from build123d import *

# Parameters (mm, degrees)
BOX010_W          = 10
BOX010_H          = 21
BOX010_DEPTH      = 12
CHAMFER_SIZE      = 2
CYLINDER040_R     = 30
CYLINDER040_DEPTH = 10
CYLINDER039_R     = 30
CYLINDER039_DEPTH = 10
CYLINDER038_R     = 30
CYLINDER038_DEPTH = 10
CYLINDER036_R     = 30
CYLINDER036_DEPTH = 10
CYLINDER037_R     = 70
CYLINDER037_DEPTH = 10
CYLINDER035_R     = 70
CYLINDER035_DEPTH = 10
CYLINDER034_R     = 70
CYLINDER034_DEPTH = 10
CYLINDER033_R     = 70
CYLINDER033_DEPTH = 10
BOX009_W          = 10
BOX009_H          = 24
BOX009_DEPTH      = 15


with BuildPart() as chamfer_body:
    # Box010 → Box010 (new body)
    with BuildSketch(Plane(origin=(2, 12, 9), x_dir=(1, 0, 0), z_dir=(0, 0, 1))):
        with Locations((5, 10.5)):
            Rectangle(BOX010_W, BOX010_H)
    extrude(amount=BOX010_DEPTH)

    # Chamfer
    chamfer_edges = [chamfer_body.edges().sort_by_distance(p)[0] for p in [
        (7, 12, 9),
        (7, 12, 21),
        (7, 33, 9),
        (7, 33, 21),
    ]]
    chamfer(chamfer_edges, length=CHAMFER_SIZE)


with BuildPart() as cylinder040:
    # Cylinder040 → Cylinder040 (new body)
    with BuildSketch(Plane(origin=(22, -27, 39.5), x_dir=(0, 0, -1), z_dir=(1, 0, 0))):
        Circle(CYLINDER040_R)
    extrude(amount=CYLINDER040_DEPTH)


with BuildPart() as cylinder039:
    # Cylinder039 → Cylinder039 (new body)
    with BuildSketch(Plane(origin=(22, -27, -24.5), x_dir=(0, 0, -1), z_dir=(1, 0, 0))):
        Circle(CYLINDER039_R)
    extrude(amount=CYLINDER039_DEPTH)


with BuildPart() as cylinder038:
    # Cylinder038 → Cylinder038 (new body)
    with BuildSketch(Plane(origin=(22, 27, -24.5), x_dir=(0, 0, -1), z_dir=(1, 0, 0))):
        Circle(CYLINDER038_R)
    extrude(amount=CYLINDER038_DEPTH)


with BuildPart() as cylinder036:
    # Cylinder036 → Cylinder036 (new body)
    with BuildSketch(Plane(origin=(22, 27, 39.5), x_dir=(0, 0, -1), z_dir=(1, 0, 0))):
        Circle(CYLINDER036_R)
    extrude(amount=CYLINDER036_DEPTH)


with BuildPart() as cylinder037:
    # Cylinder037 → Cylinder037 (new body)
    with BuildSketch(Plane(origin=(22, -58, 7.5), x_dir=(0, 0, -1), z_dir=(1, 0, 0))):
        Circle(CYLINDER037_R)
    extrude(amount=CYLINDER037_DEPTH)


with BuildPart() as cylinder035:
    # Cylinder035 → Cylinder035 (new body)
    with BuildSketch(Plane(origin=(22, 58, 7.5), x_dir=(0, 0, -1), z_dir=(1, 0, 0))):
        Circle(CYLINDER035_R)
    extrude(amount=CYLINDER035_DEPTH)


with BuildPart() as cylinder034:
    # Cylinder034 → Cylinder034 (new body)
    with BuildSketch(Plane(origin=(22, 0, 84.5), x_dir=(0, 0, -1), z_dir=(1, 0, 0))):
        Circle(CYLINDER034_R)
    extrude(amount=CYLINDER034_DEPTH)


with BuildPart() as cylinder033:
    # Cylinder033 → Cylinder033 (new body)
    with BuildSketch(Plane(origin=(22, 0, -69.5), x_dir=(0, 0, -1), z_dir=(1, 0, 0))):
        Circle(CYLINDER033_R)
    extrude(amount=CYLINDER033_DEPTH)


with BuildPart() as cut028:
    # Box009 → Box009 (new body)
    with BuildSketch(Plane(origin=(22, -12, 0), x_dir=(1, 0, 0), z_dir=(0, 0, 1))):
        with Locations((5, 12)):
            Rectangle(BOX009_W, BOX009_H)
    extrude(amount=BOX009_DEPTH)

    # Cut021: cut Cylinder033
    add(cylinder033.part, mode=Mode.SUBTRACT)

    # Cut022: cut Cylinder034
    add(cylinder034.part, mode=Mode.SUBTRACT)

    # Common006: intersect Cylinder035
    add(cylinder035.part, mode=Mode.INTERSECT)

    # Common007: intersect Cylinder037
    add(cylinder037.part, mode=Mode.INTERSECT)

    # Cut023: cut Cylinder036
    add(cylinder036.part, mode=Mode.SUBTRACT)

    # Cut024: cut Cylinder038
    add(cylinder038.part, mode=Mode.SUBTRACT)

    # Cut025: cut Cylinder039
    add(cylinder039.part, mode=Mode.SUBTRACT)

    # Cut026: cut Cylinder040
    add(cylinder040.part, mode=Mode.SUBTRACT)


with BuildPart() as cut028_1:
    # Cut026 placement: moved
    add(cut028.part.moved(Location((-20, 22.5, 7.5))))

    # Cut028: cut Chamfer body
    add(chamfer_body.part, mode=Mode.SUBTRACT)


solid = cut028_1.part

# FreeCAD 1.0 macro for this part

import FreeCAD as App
import Part
import Sketcher

V = App.Vector


def edges_at(feature, points):
    """Names of the edges that pass closest to the given points."""
    edges = feature.Shape.Edges
    near = lambda p: min(range(len(edges)), key=lambda i: edges[i].distToShape(Part.Vertex(*p))[0])
    return sorted({f"Edge{near(p) + 1}" for p in points})

doc = App.newDocument("Part")
body = doc.addObject("PartDesign::Body", "Body")

# Sketch on XY plane
sketch1 = body.newObject("Sketcher::SketchObject", "Sketch")
sketch1.AttachmentSupport = (doc.getObject("XY_Plane"), [""])
sketch1.MapMode = "FlatFace"
sketch1.AttachmentOffset = App.Placement(V(0, 0, 9), App.Rotation())
sketch1.addGeometry(Part.LineSegment(V(2, 33, 0), V(2, 12, 0)), False)
sketch1.addGeometry(Part.LineSegment(V(2, 12, 0), V(12, 12, 0)), False)
sketch1.addGeometry(Part.LineSegment(V(12, 12, 0), V(12, 33, 0)), False)
sketch1.addGeometry(Part.LineSegment(V(12, 33, 0), V(2, 33, 0)), False)
sketch1.addConstraint(Sketcher.Constraint("Coincident", 0, 2, 1, 1))
sketch1.addConstraint(Sketcher.Constraint("Coincident", 1, 2, 2, 1))
sketch1.addConstraint(Sketcher.Constraint("Coincident", 2, 2, 3, 1))
sketch1.addConstraint(Sketcher.Constraint("Coincident", 3, 2, 0, 1))
sketch1.addConstraint(Sketcher.Constraint("Vertical", 0))
sketch1.addConstraint(Sketcher.Constraint("Horizontal", 1))
sketch1.addConstraint(Sketcher.Constraint("Vertical", 2))
sketch1.addConstraint(Sketcher.Constraint("Horizontal", 3))
sketch1.addConstraint(Sketcher.Constraint("DistanceX", 1, 1, 1, 2, 10.0))
sketch1.addConstraint(Sketcher.Constraint("DistanceY", 0, 2, 0, 1, 21.0))
sketch1.addConstraint(Sketcher.Constraint("DistanceX", -1, 1, 0, 2, 2.0))
sketch1.addConstraint(Sketcher.Constraint("DistanceY", -1, 1, 0, 2, 12.0))
pad1 = body.newObject("PartDesign::Pad", "Pad")
pad1.Profile = sketch1
pad1.Length = 12
doc.recompute()

chamfer = body.newObject("PartDesign::Chamfer", "Chamfer")
chamfer.Base = (pad1, edges_at(pad1, [
    (7, 12, 9),
    (7, 12, 21),
    (7, 33, 9),
    (7, 33, 21),
]))
chamfer.Size = 2
body2 = doc.addObject("PartDesign::Body", "Body001")

# Sketch on YZ plane
sketch2 = body2.newObject("Sketcher::SketchObject", "Sketch001")
sketch2.AttachmentSupport = (doc.getObject("YZ_Plane001"), [""])
sketch2.MapMode = "FlatFace"
sketch2.AttachmentOffset = App.Placement(V(0, 0, 22), App.Rotation())
sketch2.addGeometry(Part.Circle(V(-27, 40, 0), V(0, 0, 1), 30), False)
sketch2.addConstraint(Sketcher.Constraint("Diameter", 0, 60.0))
sketch2.addConstraint(Sketcher.Constraint("DistanceX", 0, 3, -1, 1, 27.0))
sketch2.addConstraint(Sketcher.Constraint("DistanceY", -1, 1, 0, 3, 39.5))
pad2 = body2.newObject("PartDesign::Pad", "Pad001")
pad2.Profile = sketch2
pad2.Length = 10
body3 = doc.addObject("PartDesign::Body", "Body002")

# Sketch on YZ plane
sketch3 = body3.newObject("Sketcher::SketchObject", "Sketch002")
sketch3.AttachmentSupport = (doc.getObject("YZ_Plane002"), [""])
sketch3.MapMode = "FlatFace"
sketch3.AttachmentOffset = App.Placement(V(0, 0, 22), App.Rotation())
sketch3.addGeometry(Part.Circle(V(-27, -24, 0), V(0, 0, 1), 30), False)
sketch3.addConstraint(Sketcher.Constraint("Diameter", 0, 60.0))
sketch3.addConstraint(Sketcher.Constraint("DistanceX", 0, 3, -1, 1, 27.0))
sketch3.addConstraint(Sketcher.Constraint("DistanceY", 0, 3, -1, 1, 24.5))
pad3 = body3.newObject("PartDesign::Pad", "Pad002")
pad3.Profile = sketch3
pad3.Length = 10
body4 = doc.addObject("PartDesign::Body", "Body003")

# Sketch on YZ plane
sketch4 = body4.newObject("Sketcher::SketchObject", "Sketch003")
sketch4.AttachmentSupport = (doc.getObject("YZ_Plane003"), [""])
sketch4.MapMode = "FlatFace"
sketch4.AttachmentOffset = App.Placement(V(0, 0, 22), App.Rotation())
sketch4.addGeometry(Part.Circle(V(27, -24, 0), V(0, 0, 1), 30), False)
sketch4.addConstraint(Sketcher.Constraint("Diameter", 0, 60.0))
sketch4.addConstraint(Sketcher.Constraint("DistanceX", -1, 1, 0, 3, 27.0))
sketch4.addConstraint(Sketcher.Constraint("DistanceY", 0, 3, -1, 1, 24.5))
pad4 = body4.newObject("PartDesign::Pad", "Pad003")
pad4.Profile = sketch4
pad4.Length = 10
body5 = doc.addObject("PartDesign::Body", "Body004")

# Sketch on YZ plane
sketch5 = body5.newObject("Sketcher::SketchObject", "Sketch004")
sketch5.AttachmentSupport = (doc.getObject("YZ_Plane004"), [""])
sketch5.MapMode = "FlatFace"
sketch5.AttachmentOffset = App.Placement(V(0, 0, 22), App.Rotation())
sketch5.addGeometry(Part.Circle(V(27, 40, 0), V(0, 0, 1), 30), False)
sketch5.addConstraint(Sketcher.Constraint("Diameter", 0, 60.0))
sketch5.addConstraint(Sketcher.Constraint("DistanceX", -1, 1, 0, 3, 27.0))
sketch5.addConstraint(Sketcher.Constraint("DistanceY", -1, 1, 0, 3, 39.5))
pad5 = body5.newObject("PartDesign::Pad", "Pad004")
pad5.Profile = sketch5
pad5.Length = 10
body6 = doc.addObject("PartDesign::Body", "Body005")

# Sketch on YZ plane
sketch6 = body6.newObject("Sketcher::SketchObject", "Sketch005")
sketch6.AttachmentSupport = (doc.getObject("YZ_Plane005"), [""])
sketch6.MapMode = "FlatFace"
sketch6.AttachmentOffset = App.Placement(V(0, 0, 22), App.Rotation())
sketch6.addGeometry(Part.Circle(V(-58, 8, 0), V(0, 0, 1), 70), False)
sketch6.addConstraint(Sketcher.Constraint("Diameter", 0, 140.0))
sketch6.addConstraint(Sketcher.Constraint("DistanceX", 0, 3, -1, 1, 58.0))
sketch6.addConstraint(Sketcher.Constraint("DistanceY", -1, 1, 0, 3, 7.5))
pad6 = body6.newObject("PartDesign::Pad", "Pad005")
pad6.Profile = sketch6
pad6.Length = 10
body7 = doc.addObject("PartDesign::Body", "Body006")

# Sketch on YZ plane
sketch7 = body7.newObject("Sketcher::SketchObject", "Sketch006")
sketch7.AttachmentSupport = (doc.getObject("YZ_Plane006"), [""])
sketch7.MapMode = "FlatFace"
sketch7.AttachmentOffset = App.Placement(V(0, 0, 22), App.Rotation())
sketch7.addGeometry(Part.Circle(V(58, 8, 0), V(0, 0, 1), 70), False)
sketch7.addConstraint(Sketcher.Constraint("Diameter", 0, 140.0))
sketch7.addConstraint(Sketcher.Constraint("DistanceX", -1, 1, 0, 3, 58.0))
sketch7.addConstraint(Sketcher.Constraint("DistanceY", -1, 1, 0, 3, 7.5))
pad7 = body7.newObject("PartDesign::Pad", "Pad006")
pad7.Profile = sketch7
pad7.Length = 10
body8 = doc.addObject("PartDesign::Body", "Body007")

# Sketch on YZ plane
sketch8 = body8.newObject("Sketcher::SketchObject", "Sketch007")
sketch8.AttachmentSupport = (doc.getObject("YZ_Plane007"), [""])
sketch8.MapMode = "FlatFace"
sketch8.AttachmentOffset = App.Placement(V(0, 0, 22), App.Rotation())
sketch8.addGeometry(Part.Circle(V(0, 84, 0), V(0, 0, 1), 70), False)
sketch8.addConstraint(Sketcher.Constraint("PointOnObject", 0, 3, -2))
sketch8.addConstraint(Sketcher.Constraint("Diameter", 0, 140.0))
sketch8.addConstraint(Sketcher.Constraint("DistanceY", -1, 1, 0, 3, 84.5))
pad8 = body8.newObject("PartDesign::Pad", "Pad007")
pad8.Profile = sketch8
pad8.Length = 10
body9 = doc.addObject("PartDesign::Body", "Body008")

# Sketch on YZ plane
sketch9 = body9.newObject("Sketcher::SketchObject", "Sketch008")
sketch9.AttachmentSupport = (doc.getObject("YZ_Plane008"), [""])
sketch9.MapMode = "FlatFace"
sketch9.AttachmentOffset = App.Placement(V(0, 0, 22), App.Rotation())
sketch9.addGeometry(Part.Circle(V(0, -70, 0), V(0, 0, 1), 70), False)
sketch9.addConstraint(Sketcher.Constraint("PointOnObject", 0, 3, -2))
sketch9.addConstraint(Sketcher.Constraint("Diameter", 0, 140.0))
sketch9.addConstraint(Sketcher.Constraint("DistanceY", 0, 3, -1, 1, 69.5))
pad9 = body9.newObject("PartDesign::Pad", "Pad008")
pad9.Profile = sketch9
pad9.Length = 10
body10 = doc.addObject("PartDesign::Body", "Body009")

# Sketch on XY plane
sketch10 = body10.newObject("Sketcher::SketchObject", "Sketch009")
sketch10.AttachmentSupport = (doc.getObject("XY_Plane009"), [""])
sketch10.MapMode = "FlatFace"
sketch10.addGeometry(Part.LineSegment(V(22, 12, 0), V(22, -12, 0)), False)
sketch10.addGeometry(Part.LineSegment(V(22, -12, 0), V(32, -12, 0)), False)
sketch10.addGeometry(Part.LineSegment(V(32, -12, 0), V(32, 12, 0)), False)
sketch10.addGeometry(Part.LineSegment(V(32, 12, 0), V(22, 12, 0)), False)
sketch10.addConstraint(Sketcher.Constraint("Coincident", 0, 2, 1, 1))
sketch10.addConstraint(Sketcher.Constraint("Coincident", 1, 2, 2, 1))
sketch10.addConstraint(Sketcher.Constraint("Coincident", 2, 2, 3, 1))
sketch10.addConstraint(Sketcher.Constraint("Coincident", 3, 2, 0, 1))
sketch10.addConstraint(Sketcher.Constraint("Vertical", 0))
sketch10.addConstraint(Sketcher.Constraint("Horizontal", 1))
sketch10.addConstraint(Sketcher.Constraint("Vertical", 2))
sketch10.addConstraint(Sketcher.Constraint("Horizontal", 3))
sketch10.addConstraint(Sketcher.Constraint("DistanceX", 1, 1, 1, 2, 10.0))
sketch10.addConstraint(Sketcher.Constraint("DistanceY", 0, 2, 0, 1, 24.0))
sketch10.addConstraint(Sketcher.Constraint("DistanceX", -1, 1, 0, 2, 22.0))
sketch10.addConstraint(Sketcher.Constraint("DistanceY", 0, 2, -1, 1, 12.0))
pad10 = body10.newObject("PartDesign::Pad", "Pad009")
pad10.Profile = sketch10
pad10.Length = 15
doc.recompute()

boolean = body10.newObject("PartDesign::Boolean", "Boolean")
boolean.Type = "Cut"
boolean.addObjects([body9])
doc.recompute()

boolean2 = body10.newObject("PartDesign::Boolean", "Boolean001")
boolean2.Type = "Cut"
boolean2.addObjects([body8])
doc.recompute()

boolean3 = body10.newObject("PartDesign::Boolean", "Boolean002")
boolean3.Type = "Common"
boolean3.addObjects([body7])
doc.recompute()

boolean4 = body10.newObject("PartDesign::Boolean", "Boolean003")
boolean4.Type = "Common"
boolean4.addObjects([body6])
doc.recompute()

boolean5 = body10.newObject("PartDesign::Boolean", "Boolean004")
boolean5.Type = "Cut"
boolean5.addObjects([body5])
doc.recompute()

boolean6 = body10.newObject("PartDesign::Boolean", "Boolean005")
boolean6.Type = "Cut"
boolean6.addObjects([body4])
doc.recompute()

boolean7 = body10.newObject("PartDesign::Boolean", "Boolean006")
boolean7.Type = "Cut"
boolean7.addObjects([body3])
doc.recompute()

boolean8 = body10.newObject("PartDesign::Boolean", "Boolean007")
boolean8.Type = "Cut"
boolean8.addObjects([body2])
body11 = doc.addObject("PartDesign::Body", "Body010")
doc.recompute()

body10.Placement = App.Placement(V(-20, 22.5, 7.5), App.Rotation(V(0, 0, 1), 0))
boolean9 = body11.newObject("PartDesign::Boolean", "Boolean008")
boolean9.Type = "Fuse"
boolean9.addObjects([body10])
doc.recompute()

boolean10 = body11.newObject("PartDesign::Boolean", "Boolean009")
boolean10.Type = "Cut"
boolean10.addObjects([body])

doc.recompute()
